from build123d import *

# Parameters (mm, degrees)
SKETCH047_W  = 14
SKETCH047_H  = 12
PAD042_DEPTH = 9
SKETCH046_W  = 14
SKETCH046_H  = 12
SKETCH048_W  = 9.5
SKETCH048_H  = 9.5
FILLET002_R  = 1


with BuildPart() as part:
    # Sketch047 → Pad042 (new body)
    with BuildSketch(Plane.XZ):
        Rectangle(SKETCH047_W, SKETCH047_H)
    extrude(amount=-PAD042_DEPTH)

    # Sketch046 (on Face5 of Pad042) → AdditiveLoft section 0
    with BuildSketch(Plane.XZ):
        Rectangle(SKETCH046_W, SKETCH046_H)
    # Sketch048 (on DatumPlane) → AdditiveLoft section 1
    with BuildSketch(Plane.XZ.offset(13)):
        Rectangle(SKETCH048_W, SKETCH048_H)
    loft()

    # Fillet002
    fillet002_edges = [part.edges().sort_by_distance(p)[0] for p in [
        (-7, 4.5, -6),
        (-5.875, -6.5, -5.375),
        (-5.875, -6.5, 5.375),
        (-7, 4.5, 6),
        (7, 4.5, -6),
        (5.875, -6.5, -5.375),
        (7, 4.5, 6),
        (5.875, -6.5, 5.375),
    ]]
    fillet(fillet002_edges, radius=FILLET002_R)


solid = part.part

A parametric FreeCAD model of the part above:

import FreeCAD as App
import Part
import Sketcher
from FreeCAD import Vector


def edges_at(feature, points):
    """Names of the edges that pass closest to the given points."""
    edges = feature.Shape.Edges
    near = lambda p: min(range(len(edges)), key=lambda i: edges[i].distToShape(Part.Vertex(*p))[0])
    return sorted({f"Edge{near(p) + 1}" for p in points})


def add_polygon(sketch, points):
    """Adds a closed chain of lines whose ends are joined by coincident constraints."""
    first, n = sketch.GeometryCount, len(points)
    for a, b in zip(points, points[1:] + points[:1]):
        sketch.addGeometry(Part.LineSegment(App.Vector(*a, 0), App.Vector(*b, 0)), False)
    for i in range(n):
        sketch.addConstraint(Sketcher.Constraint("Coincident", first + i, 2, first + (i + 1) % n, 1))

doc = App.newDocument("Part")
body = doc.addObject("PartDesign::Body", "Body")

# Sketch on XZ plane
sketch1 = body.newObject("Sketcher::SketchObject", "Sketch")
sketch1.AttachmentSupport = (doc.getObject("XZ_Plane"), [""])
sketch1.MapMode = "FlatFace"
add_polygon(sketch1, [(-7, 6), (-7, -6), (7, -6), (7, 6)])  # lines 0-3
sketch1.addConstraint([
    Sketcher.Constraint("Vertical", 0),
    Sketcher.Constraint("Horizontal", 1),
    Sketcher.Constraint("Vertical", 2),
    Sketcher.Constraint("Horizontal", 3),
    Sketcher.Constraint("Symmetric", 0, 2, 2, 2, -1, 1),
    Sketcher.Constraint("DistanceX", 1, 1, 1, 2, 14.0),
    Sketcher.Constraint("DistanceY", 0, 2, 0, 1, 12.0),
])
pad1 = body.newObject("PartDesign::Pad", "Pad")
pad1.Profile = sketch1
pad1.Length = 9
pad1.Reversed = True

# Sketch on XZ plane
sketch2 = body.newObject("Sketcher::SketchObject", "Sketch001")
sketch2.AttachmentSupport = (doc.getObject("XZ_Plane"), [""])
sketch2.MapMode = "FlatFace"
add_polygon(sketch2, [(-7, 6), (-7, -6), (7, -6), (7, 6)])  # lines 0-3
sketch2.addConstraint([
    Sketcher.Constraint("Vertical", 0),
    Sketcher.Constraint("Horizontal", 1),
    Sketcher.Constraint("Vertical", 2),
    Sketcher.Constraint("Horizontal", 3),
    Sketcher.Constraint("Symmetric", 0, 2, 2, 2, -1, 1),
    Sketcher.Constraint("DistanceX", 1, 1, 1, 2, 14.0),
    Sketcher.Constraint("DistanceY", 0, 2, 0, 1, 12.0),
])

# Sketch on XZ plane
sketch3 = body.newObject("Sketcher::SketchObject", "Sketch002")
sketch3.AttachmentSupport = (doc.getObject("XZ_Plane"), [""])
sketch3.MapMode = "FlatFace"
sketch3.AttachmentOffset = App.Placement(Vector(0, 0, 13), App.Rotation())
add_polygon(sketch3, [(-5, 5), (-5, -5), (5, -5), (5, 5)])  # lines 0-3
sketch3.addConstraint([
    Sketcher.Constraint("Vertical", 0),
    Sketcher.Constraint("Horizontal", 1),
    Sketcher.Constraint("Vertical", 2),
    Sketcher.Constraint("Horizontal", 3),
    Sketcher.Constraint("Symmetric", 0, 2, 2, 2, -1, 1),
    Sketcher.Constraint("Equal", 3, 0),
    Sketcher.Constraint("DistanceX", 1, 1, 1, 2, 9.5),
])

additiveloft = body.newObject("PartDesign::AdditiveLoft", "AdditiveLoft")
additiveloft.Profile = sketch2
additiveloft.Sections = [sketch3]
doc.recompute()

fillet = body.newObject("PartDesign::Fillet", "Fillet")
fillet.Base = (additiveloft, edges_at(additiveloft, [
    (-7, 4.5, -6),
    (-5.875, -6.5, -5.375),
    (-5.875, -6.5, 5.375),
    (-7, 4.5, 6),
    (7, 4.5, -6),
    (5.875, -6.5, -5.375),
    (7, 4.5, 6),
    (5.875, -6.5, 5.375),
]))
fillet.Radius = 1

doc.recompute()
